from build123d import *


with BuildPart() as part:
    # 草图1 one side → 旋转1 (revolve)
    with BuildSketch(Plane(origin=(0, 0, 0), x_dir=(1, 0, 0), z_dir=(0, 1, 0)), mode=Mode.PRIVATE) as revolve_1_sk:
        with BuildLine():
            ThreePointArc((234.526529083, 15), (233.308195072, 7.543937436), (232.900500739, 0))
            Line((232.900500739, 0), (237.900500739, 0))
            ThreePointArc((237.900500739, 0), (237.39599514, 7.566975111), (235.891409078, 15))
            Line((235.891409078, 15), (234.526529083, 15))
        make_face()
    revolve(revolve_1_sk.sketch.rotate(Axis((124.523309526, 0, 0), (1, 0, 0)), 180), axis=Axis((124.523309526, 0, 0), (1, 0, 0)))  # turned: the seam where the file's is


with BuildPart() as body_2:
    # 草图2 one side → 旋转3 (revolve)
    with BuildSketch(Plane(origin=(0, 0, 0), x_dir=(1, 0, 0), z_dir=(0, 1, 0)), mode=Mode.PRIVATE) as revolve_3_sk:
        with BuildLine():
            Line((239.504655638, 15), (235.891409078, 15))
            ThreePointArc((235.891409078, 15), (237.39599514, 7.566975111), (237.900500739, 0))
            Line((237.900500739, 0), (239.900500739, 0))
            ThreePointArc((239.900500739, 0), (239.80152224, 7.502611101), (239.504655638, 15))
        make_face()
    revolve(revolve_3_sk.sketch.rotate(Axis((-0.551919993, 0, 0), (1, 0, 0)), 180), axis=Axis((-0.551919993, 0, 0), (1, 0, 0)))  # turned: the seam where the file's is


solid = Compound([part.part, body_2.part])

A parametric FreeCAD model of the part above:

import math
import FreeCAD as App
import Part
import Sketcher

V = App.Vector

doc = App.newDocument("Part")
body = doc.addObject("PartDesign::Body", "Body")

# Sketch on XZ plane
sketch1 = doc.addObject("Sketcher::SketchObject", "Sketch")
body.addObject(sketch1)
sketch1.AttachmentSupport = (doc.XZ_Plane, [""])
sketch1.MapMode = "FlatFace"
sketch1.addGeometry(Part.ArcOfCircle(Part.Circle(V(302.9, 0, 0), V(0, 0, 1), 70), math.radians(180), math.radians(192.37)), False)
sketch1.addGeometry(Part.LineSegment(V(232.9, 0, 0), V(237.9, 0, 0)), False)
sketch1.addGeometry(Part.ArcOfCircle(Part.Circle(V(180.9, 0, 0), V(0, 0, 1), 57), math.radians(-15.26), math.radians(0)), False)
sketch1.addGeometry(Part.LineSegment(V(235.9, -15, 0), V(234.5, -15, 0)), False)
sketch1.addConstraint(Sketcher.Constraint("Coincident", 0, 1, 1, 1))
sketch1.addConstraint(Sketcher.Constraint("Coincident", 1, 2, 2, 2))
sketch1.addConstraint(Sketcher.Constraint("Coincident", 2, 1, 3, 1))
sketch1.addConstraint(Sketcher.Constraint("Coincident", 3, 2, 0, 2))
sketch1.addConstraint(Sketcher.Constraint("Horizontal", 1))
sketch1.addConstraint(Sketcher.Constraint("Horizontal", 3))
sketch1.addConstraint(Sketcher.Constraint("PointOnObject", 0, 3, -1))
sketch1.addConstraint(Sketcher.Constraint("PointOnObject", 2, 3, -1))
sketch1.addConstraint(Sketcher.Constraint("PointOnObject", 0, 1, -1))
sketch1.addConstraint(Sketcher.Constraint("Radius", 0, 70.0))
sketch1.addConstraint(Sketcher.Constraint("Radius", 2, 57.0))
sketch1.addConstraint(Sketcher.Constraint("DistanceX", 1, 1, 1, 2, 5.0))
sketch1.addConstraint(Sketcher.Constraint("DistanceY", 2, 1, -1, 1, 15.0))
sketch1.addConstraint(Sketcher.Constraint("DistanceX", -1, 1, 0, 3, 302.900501))
revolution = doc.addObject("PartDesign::Revolution", "Revolution")
body.addObject(revolution)
revolution.Profile = sketch1
revolution.ReferenceAxis = (sketch1, ["H_Axis"])
revolution.Angle = 360
body2 = doc.addObject("PartDesign::Body", "Body001")

# Sketch on XZ plane
sketch2 = doc.addObject("Sketcher::SketchObject", "Sketch001")
body2.addObject(sketch2)
sketch2.AttachmentSupport = (doc.getObject("XZ_Plane001"), [""])
sketch2.MapMode = "FlatFace"
sketch2.addGeometry(Part.LineSegment(V(239.5, -15, 0), V(235.9, -15, 0)), False)
sketch2.addGeometry(Part.ArcOfCircle(Part.Circle(V(180.9, 0, 0), V(0, 0, 1), 57), math.radians(-15.26), math.radians(0)), False)
sketch2.addGeometry(Part.LineSegment(V(237.9, 0, 0), V(239.9, 0, 0)), False)
sketch2.addGeometry(Part.ArcOfCircle(Part.Circle(V(-44.5, 0, 0), V(0, 0, 1), 284.4), math.radians(-3.02), math.radians(0)), False)
sketch2.addConstraint(Sketcher.Constraint("Coincident", 0, 2, 1, 1))
sketch2.addConstraint(Sketcher.Constraint("Coincident", 1, 2, 2, 1))
sketch2.addConstraint(Sketcher.Constraint("Coincident", 2, 2, 3, 2))
sketch2.addConstraint(Sketcher.Constraint("Coincident", 3, 1, 0, 1))
sketch2.addConstraint(Sketcher.Constraint("Horizontal", 0))
sketch2.addConstraint(Sketcher.Constraint("Horizontal", 2))
sketch2.addConstraint(Sketcher.Constraint("PointOnObject", 1, 3, -1))
sketch2.addConstraint(Sketcher.Constraint("PointOnObject", 3, 3, -1))
sketch2.addConstraint(Sketcher.Constraint("PointOnObject", 1, 2, -1))
sketch2.addConstraint(Sketcher.Constraint("Radius", 1, 57.0))
sketch2.addConstraint(Sketcher.Constraint("Radius", 3, 284.400001))
sketch2.addConstraint(Sketcher.Constraint("DistanceX", 2, 1, 2, 2, 2.0))
sketch2.addConstraint(Sketcher.Constraint("DistanceY", 0, 2, -1, 1, 15.0))
sketch2.addConstraint(Sketcher.Constraint("DistanceX", -1, 1, 1, 3, 180.900501))
revolution2 = doc.addObject("PartDesign::Revolution", "Revolution001")
body2.addObject(revolution2)
revolution2.Profile = sketch2
revolution2.ReferenceAxis = (sketch2, ["H_Axis"])
revolution2.Angle = 360

doc.recompute()
